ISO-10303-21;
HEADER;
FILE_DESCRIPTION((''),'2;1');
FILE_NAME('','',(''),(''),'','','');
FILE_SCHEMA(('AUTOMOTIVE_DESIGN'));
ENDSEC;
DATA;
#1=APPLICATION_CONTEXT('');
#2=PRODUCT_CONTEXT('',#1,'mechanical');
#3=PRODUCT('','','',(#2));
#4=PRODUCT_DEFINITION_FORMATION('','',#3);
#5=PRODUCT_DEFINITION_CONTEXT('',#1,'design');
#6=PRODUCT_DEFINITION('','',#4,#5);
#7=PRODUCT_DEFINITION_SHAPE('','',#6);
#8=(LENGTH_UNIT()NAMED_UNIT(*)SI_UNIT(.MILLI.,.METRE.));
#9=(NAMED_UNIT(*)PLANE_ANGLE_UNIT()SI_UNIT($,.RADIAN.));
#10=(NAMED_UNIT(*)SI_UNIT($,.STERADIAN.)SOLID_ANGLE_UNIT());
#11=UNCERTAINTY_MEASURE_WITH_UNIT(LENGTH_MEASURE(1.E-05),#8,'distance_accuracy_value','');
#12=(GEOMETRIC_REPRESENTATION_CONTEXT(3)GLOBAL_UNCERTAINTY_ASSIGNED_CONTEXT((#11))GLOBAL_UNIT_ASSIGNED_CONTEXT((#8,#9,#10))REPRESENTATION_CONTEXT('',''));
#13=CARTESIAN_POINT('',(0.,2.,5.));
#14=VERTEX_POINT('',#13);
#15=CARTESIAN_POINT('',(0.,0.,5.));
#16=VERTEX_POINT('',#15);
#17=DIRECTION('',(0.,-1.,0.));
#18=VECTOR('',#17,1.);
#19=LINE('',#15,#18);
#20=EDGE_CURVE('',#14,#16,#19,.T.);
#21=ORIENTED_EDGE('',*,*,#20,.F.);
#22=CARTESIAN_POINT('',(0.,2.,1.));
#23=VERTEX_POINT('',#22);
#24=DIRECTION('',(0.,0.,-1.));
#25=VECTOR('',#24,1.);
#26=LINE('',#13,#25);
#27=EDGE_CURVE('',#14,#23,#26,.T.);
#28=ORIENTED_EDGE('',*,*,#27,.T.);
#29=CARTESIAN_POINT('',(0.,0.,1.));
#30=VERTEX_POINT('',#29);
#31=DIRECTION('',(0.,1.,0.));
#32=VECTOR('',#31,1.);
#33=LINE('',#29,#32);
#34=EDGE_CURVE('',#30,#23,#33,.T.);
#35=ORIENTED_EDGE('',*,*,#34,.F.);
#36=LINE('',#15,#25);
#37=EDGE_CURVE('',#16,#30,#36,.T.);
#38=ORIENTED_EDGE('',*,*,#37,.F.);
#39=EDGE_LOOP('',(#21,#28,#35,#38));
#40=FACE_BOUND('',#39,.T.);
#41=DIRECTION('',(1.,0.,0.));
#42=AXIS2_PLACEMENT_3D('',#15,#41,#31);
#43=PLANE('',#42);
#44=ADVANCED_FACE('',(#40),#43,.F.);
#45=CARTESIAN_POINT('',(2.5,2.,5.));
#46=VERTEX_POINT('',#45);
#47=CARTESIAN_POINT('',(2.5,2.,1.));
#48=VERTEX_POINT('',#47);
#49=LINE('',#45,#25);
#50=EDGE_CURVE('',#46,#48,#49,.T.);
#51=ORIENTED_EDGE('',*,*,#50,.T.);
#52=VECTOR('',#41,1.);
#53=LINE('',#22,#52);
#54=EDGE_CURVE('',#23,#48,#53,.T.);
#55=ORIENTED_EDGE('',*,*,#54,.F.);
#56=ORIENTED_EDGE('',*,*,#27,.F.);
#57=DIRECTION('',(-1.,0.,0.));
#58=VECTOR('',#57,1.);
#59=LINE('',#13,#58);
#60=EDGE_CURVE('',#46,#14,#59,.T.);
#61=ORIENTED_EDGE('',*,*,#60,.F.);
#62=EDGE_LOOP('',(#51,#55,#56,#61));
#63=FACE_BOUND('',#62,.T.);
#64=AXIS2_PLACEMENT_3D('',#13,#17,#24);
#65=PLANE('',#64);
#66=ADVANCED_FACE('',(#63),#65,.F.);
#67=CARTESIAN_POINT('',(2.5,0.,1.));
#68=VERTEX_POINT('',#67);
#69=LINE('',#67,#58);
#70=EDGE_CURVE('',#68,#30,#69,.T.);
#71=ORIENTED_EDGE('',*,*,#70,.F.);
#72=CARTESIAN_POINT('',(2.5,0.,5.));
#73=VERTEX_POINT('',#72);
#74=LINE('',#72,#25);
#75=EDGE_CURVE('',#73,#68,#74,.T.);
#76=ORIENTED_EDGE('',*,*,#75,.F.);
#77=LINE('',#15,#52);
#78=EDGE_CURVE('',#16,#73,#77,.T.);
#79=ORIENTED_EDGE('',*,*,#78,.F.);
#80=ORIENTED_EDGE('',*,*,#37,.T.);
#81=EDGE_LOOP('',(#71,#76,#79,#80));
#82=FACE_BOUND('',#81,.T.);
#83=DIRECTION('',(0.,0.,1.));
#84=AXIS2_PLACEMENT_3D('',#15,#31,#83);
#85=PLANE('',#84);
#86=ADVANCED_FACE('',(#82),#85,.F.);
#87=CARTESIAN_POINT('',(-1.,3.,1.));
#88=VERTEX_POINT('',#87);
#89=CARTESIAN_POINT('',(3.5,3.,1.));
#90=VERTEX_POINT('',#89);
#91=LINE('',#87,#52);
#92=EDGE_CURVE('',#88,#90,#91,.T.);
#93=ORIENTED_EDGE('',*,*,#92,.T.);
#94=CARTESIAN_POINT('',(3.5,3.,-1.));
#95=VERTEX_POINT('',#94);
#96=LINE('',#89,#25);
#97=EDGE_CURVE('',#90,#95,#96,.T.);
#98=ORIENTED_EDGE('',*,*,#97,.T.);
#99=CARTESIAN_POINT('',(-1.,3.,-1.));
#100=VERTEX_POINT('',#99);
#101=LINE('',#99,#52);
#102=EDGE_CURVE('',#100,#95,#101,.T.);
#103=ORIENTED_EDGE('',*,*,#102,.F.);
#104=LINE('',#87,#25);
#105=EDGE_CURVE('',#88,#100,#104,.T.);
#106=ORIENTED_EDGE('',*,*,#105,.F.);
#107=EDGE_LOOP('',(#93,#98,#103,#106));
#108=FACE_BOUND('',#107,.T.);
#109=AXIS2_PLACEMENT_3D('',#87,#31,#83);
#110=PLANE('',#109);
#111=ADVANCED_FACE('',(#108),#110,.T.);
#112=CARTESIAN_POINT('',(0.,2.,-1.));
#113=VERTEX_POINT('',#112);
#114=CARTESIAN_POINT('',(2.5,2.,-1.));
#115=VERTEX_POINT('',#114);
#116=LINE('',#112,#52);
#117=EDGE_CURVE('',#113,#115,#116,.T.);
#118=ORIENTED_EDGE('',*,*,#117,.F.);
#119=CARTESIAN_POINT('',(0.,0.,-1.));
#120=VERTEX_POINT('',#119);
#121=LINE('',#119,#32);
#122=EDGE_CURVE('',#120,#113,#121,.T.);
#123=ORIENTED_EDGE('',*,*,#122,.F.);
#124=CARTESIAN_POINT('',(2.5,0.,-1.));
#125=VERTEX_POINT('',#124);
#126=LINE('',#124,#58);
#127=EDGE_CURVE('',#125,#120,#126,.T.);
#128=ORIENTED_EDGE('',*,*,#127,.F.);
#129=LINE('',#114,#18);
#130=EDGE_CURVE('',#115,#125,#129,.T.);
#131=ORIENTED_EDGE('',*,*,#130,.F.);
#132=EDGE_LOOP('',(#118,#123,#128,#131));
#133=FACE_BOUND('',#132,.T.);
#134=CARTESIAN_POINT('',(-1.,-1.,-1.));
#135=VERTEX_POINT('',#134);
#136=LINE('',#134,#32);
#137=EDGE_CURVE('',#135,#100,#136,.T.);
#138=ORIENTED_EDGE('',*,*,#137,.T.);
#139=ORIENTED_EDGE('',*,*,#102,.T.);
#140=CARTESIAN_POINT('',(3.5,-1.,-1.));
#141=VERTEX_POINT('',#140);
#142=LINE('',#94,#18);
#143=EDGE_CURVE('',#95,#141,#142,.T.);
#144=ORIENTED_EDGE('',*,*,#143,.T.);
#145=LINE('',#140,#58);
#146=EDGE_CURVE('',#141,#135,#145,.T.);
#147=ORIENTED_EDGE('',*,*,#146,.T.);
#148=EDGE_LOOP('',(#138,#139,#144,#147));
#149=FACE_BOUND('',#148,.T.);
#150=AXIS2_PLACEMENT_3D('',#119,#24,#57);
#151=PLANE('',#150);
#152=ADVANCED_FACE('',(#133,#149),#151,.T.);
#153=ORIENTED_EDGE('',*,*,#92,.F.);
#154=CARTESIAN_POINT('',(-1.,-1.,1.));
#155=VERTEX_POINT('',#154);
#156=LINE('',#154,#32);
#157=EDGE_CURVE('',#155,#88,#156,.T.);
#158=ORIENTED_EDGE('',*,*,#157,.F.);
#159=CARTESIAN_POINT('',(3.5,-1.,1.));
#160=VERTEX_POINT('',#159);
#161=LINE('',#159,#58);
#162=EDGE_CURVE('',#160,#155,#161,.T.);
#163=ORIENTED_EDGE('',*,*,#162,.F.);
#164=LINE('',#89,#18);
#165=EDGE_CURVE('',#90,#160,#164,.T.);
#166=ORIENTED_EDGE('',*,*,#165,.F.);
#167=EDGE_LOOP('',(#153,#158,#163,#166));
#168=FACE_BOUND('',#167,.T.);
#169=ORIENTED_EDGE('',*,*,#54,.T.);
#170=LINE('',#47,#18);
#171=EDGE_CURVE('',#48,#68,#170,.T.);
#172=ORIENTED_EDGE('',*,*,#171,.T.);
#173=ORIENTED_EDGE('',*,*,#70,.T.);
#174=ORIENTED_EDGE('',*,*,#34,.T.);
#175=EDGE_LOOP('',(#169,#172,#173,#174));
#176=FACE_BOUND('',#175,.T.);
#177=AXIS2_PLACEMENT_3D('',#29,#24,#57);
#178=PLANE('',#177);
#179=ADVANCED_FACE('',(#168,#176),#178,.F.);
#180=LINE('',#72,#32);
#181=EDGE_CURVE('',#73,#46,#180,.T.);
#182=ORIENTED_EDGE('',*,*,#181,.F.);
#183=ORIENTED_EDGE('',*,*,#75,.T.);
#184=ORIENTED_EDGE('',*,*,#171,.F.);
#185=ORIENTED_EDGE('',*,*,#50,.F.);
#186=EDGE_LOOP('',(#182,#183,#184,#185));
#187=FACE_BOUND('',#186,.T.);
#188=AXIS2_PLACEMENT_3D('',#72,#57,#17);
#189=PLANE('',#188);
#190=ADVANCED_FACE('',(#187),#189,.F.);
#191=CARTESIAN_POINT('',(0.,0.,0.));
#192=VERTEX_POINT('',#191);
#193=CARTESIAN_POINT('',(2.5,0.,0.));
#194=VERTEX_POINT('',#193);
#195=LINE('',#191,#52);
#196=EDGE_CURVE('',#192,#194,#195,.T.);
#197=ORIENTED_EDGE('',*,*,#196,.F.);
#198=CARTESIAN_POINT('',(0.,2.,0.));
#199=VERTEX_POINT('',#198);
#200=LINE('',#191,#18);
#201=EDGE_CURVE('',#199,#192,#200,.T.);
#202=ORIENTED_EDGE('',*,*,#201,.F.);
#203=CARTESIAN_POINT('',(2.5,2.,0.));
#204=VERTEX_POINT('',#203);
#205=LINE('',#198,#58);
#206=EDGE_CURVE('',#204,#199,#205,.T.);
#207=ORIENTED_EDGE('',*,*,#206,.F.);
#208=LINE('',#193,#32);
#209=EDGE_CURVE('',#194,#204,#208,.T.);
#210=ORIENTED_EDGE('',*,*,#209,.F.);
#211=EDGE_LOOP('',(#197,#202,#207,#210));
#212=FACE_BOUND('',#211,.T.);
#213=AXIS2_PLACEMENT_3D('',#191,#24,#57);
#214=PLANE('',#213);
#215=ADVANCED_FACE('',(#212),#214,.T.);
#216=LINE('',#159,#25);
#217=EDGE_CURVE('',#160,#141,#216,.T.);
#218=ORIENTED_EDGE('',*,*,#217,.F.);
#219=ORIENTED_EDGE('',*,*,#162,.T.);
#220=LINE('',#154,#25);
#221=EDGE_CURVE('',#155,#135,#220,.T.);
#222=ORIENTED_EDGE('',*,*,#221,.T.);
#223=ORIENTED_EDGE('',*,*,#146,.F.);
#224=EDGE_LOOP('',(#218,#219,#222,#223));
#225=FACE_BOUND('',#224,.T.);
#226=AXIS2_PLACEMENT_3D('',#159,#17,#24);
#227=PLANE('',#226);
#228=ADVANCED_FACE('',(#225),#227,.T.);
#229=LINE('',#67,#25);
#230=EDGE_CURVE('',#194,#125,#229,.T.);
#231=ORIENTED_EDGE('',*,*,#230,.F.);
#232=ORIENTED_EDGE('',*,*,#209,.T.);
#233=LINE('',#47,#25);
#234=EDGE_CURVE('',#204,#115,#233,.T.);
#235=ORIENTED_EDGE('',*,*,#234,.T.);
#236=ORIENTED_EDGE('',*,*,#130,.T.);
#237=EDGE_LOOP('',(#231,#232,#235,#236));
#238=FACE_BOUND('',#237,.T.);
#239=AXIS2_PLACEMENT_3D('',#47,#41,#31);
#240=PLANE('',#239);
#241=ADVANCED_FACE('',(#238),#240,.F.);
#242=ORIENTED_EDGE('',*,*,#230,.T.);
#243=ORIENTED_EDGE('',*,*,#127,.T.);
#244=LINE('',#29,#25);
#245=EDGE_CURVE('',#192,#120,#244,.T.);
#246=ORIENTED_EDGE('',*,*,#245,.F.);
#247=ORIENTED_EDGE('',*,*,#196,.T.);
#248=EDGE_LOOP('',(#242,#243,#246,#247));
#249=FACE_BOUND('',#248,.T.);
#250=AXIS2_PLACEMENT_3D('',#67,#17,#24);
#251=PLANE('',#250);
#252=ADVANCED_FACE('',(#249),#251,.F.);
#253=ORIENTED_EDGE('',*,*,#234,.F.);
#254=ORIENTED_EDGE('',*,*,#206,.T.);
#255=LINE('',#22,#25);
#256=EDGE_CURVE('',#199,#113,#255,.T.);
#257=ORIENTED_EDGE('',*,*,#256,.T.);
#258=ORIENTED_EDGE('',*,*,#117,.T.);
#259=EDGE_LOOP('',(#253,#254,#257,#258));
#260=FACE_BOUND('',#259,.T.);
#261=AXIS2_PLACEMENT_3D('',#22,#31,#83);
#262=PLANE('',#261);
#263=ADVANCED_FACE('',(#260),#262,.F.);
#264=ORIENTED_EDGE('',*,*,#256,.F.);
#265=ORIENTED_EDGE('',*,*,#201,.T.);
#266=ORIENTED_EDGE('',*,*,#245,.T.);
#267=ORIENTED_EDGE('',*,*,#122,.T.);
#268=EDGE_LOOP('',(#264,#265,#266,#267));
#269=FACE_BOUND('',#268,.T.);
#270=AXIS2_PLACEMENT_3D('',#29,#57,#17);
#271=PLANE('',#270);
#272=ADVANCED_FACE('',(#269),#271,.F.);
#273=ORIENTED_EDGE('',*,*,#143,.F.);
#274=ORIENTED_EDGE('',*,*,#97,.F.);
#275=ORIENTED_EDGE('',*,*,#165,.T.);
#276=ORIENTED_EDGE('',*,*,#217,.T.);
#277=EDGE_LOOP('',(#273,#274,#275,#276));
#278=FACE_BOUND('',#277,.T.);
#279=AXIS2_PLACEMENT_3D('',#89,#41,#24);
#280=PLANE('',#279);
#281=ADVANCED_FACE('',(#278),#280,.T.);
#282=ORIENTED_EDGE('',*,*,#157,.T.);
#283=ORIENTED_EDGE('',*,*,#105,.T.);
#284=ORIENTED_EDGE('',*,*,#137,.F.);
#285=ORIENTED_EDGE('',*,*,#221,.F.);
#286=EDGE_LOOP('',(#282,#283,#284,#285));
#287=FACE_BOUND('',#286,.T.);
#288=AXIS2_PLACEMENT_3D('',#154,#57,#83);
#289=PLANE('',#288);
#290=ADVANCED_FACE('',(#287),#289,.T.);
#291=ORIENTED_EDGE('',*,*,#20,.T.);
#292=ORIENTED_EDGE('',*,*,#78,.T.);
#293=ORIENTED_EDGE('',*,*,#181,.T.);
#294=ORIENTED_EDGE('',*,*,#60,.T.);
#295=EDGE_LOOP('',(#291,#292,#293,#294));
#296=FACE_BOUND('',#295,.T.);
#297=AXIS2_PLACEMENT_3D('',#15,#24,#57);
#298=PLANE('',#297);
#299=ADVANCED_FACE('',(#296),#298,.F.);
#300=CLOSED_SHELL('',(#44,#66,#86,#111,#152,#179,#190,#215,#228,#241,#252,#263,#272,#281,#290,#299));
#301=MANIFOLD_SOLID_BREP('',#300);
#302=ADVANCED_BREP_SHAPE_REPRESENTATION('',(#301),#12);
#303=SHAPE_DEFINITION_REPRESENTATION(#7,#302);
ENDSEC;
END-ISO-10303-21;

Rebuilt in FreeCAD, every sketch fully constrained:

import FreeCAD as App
import Part
import Sketcher
from FreeCAD import Vector
Q = App.Units.Quantity

doc = App.newDocument("Part")
body = doc.addObject("PartDesign::Body", "Body")

# Sketch on XY plane
sketch1 = body.newObject("Sketcher::SketchObject", "Sketch")
sketch1.AttachmentSupport = (doc.getObject("XY_Plane"), [""])
sketch1.MapMode = "FlatFace"
sketch1.addGeometry(Part.LineSegment(Vector(0, 2, 0), Vector(0, 0, 0)), False)
sketch1.addGeometry(Part.LineSegment(Vector(0, 0, 0), Vector(2.5, 0, 0)), False)
sketch1.addGeometry(Part.LineSegment(Vector(2.5, 0, 0), Vector(2.5, 2, 0)), False)
sketch1.addGeometry(Part.LineSegment(Vector(2.5, 2, 0), Vector(0, 2, 0)), False)
sketch1.addConstraint(Sketcher.Constraint("Coincident", 0, 2, 1, 1))
sketch1.addConstraint(Sketcher.Constraint("Coincident", 1, 2, 2, 1))
sketch1.addConstraint(Sketcher.Constraint("Coincident", 2, 2, 3, 1))
sketch1.addConstraint(Sketcher.Constraint("Coincident", 3, 2, 0, 1))
sketch1.addConstraint(Sketcher.Constraint("Vertical", 0))
sketch1.addConstraint(Sketcher.Constraint("Horizontal", 1))
sketch1.addConstraint(Sketcher.Constraint("Vertical", 2))
sketch1.addConstraint(Sketcher.Constraint("Horizontal", 3))
sketch1.addConstraint(Sketcher.Constraint("Coincident", 0, 2, -1, 1))
sketch1.addConstraint(Sketcher.Constraint("DistanceY", 0, 2, 0, 1, Q("2 mm")))
sketch1.addConstraint(Sketcher.Constraint("DistanceX", 1, 1, 1, 2, Q("2.5 mm")))
pad1 = body.newObject("PartDesign::Pad", "Pad")
pad1.Profile = sketch1
pad1.Length = 5

# Sketch on XY plane
sketch2 = body.newObject("Sketcher::SketchObject", "Sketch001")
sketch2.AttachmentSupport = (doc.getObject("XY_Plane"), [""])
sketch2.MapMode = "FlatFace"
sketch2.addGeometry(Part.LineSegment(Vector(3.5, 3, 0), Vector(3.5, -1, 0)), False)
sketch2.addGeometry(Part.LineSegment(Vector(3.5, -1, 0), Vector(-1, -1, 0)), False)
sketch2.addGeometry(Part.LineSegment(Vector(-1, -1, 0), Vector(-1, 3, 0)), False)
sketch2.addGeometry(Part.LineSegment(Vector(-1, 3, 0), Vector(3.5, 3, 0)), False)
sketch2.addGeometry(Part.LineSegment(Vector(0, 0, 0), Vector(2.5, 0, 0)), False)
sketch2.addGeometry(Part.LineSegment(Vector(2.5, 0, 0), Vector(2.5, 2, 0)), False)
sketch2.addGeometry(Part.LineSegment(Vector(2.5, 2, 0), Vector(0, 2, 0)), False)
sketch2.addGeometry(Part.LineSegment(Vector(0, 2, 0), Vector(0, 0, 0)), False)
sketch2.addConstraint(Sketcher.Constraint("Coincident", 0, 2, 1, 1))
sketch2.addConstraint(Sketcher.Constraint("Coincident", 1, 2, 2, 1))
sketch2.addConstraint(Sketcher.Constraint("Coincident", 2, 2, 3, 1))
sketch2.addConstraint(Sketcher.Constraint("Coincident", 3, 2, 0, 1))
sketch2.addConstraint(Sketcher.Constraint("Coincident", 4, 2, 5, 1))
sketch2.addConstraint(Sketcher.Constraint("Coincident", 5, 2, 6, 1))
sketch2.addConstraint(Sketcher.Constraint("Coincident", 6, 2, 7, 1))
sketch2.addConstraint(Sketcher.Constraint("Coincident", 7, 2, 4, 1))
sketch2.addConstraint(Sketcher.Constraint("Vertical", 0))
sketch2.addConstraint(Sketcher.Constraint("Horizontal", 1))
sketch2.addConstraint(Sketcher.Constraint("Vertical", 2))
sketch2.addConstraint(Sketcher.Constraint("Horizontal", 3))
sketch2.addConstraint(Sketcher.Constraint("Horizontal", 4))
sketch2.addConstraint(Sketcher.Constraint("Vertical", 5))
sketch2.addConstraint(Sketcher.Constraint("Horizontal", 6))
sketch2.addConstraint(Sketcher.Constraint("Vertical", 7))
sketch2.addConstraint(Sketcher.Constraint("Coincident", 7, 2, -1, 1))
sketch2.addConstraint(Sketcher.Constraint("DistanceY", 0, 2, 0, 1, Q("4 mm")))
sketch2.addConstraint(Sketcher.Constraint("DistanceY", 5, 1, 5, 2, Q("2 mm")))
sketch2.addConstraint(Sketcher.Constraint("DistanceX", 1, 2, 1, 1, Q("4.5 mm")))
sketch2.addConstraint(Sketcher.Constraint("DistanceX", 4, 1, 4, 2, Q("2.5 mm")))
sketch2.addConstraint(Sketcher.Constraint("DistanceY", 0, 2, -1, 1, Q("1 mm")))
sketch2.addConstraint(Sketcher.Constraint("DistanceX", 1, 2, -1, 1, Q("1 mm")))
pad2 = body.newObject("PartDesign::Pad", "Pad001")
pad2.Profile = sketch2
pad2.Type = "TwoLengths"
pad2.Length = 1
pad2.Length2 = 1
pad2.Reversed = True

doc.recompute()
